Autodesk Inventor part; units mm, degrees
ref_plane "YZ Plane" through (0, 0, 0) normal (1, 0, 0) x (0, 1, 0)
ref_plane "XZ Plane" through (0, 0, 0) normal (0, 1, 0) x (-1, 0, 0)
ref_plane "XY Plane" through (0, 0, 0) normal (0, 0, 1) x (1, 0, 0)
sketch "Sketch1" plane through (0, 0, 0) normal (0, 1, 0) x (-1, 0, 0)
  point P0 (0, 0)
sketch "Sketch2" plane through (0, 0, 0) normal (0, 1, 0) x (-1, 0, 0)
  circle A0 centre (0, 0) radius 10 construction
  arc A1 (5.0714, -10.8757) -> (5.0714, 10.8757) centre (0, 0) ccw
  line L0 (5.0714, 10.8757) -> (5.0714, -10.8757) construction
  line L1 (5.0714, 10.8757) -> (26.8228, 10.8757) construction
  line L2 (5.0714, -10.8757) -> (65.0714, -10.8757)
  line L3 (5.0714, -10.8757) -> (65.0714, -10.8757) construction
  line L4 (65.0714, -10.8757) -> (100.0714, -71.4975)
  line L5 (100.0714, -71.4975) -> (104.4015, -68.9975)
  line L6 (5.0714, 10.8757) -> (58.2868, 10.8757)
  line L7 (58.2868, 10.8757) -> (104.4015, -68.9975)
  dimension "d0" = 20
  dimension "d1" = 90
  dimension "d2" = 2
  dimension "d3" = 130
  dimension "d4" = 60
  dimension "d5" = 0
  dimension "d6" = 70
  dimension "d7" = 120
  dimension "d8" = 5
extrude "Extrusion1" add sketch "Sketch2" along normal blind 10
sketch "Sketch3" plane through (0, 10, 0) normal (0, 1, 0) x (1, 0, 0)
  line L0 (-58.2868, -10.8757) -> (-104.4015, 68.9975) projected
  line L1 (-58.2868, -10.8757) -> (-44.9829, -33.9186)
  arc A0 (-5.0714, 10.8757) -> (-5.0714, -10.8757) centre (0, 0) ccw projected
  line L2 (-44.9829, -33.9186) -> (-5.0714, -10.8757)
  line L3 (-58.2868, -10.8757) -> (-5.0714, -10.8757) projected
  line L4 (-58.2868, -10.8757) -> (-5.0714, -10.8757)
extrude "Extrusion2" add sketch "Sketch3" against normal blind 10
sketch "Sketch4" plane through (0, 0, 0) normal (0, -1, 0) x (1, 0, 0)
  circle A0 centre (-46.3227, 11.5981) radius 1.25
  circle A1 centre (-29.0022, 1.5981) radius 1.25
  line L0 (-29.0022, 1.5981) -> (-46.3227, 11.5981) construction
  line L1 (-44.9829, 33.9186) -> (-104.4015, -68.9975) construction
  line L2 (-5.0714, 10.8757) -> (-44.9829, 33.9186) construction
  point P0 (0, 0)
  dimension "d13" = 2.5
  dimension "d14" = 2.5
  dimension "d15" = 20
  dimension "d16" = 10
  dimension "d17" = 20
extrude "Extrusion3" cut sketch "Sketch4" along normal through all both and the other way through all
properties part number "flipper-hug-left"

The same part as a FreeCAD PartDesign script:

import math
import FreeCAD as App
import Part
import Sketcher
Q = App.Units.Quantity


def add_polygon(sketch, points):
    """Adds a closed chain of lines whose ends are joined by coincident constraints."""
    first, n = sketch.GeometryCount, len(points)
    for a, b in zip(points, points[1:] + points[:1]):
        sketch.addGeometry(Part.LineSegment(App.Vector(*a, 0), App.Vector(*b, 0)), False)
    for i in range(n):
        sketch.addConstraint(Sketcher.Constraint("Coincident", first + i, 2, first + (i + 1) % n, 1))

doc = App.newDocument("Part")
body = doc.addObject("PartDesign::Body", "Body")

# Sketch on XZ plane
sketch1 = body.newObject("Sketcher::SketchObject", "Sketch")
sketch1.AttachmentSupport = (doc.getObject("XZ_Plane"), [""])
sketch1.MapMode = "FlatFace"
sketch1.addGeometry(Part.ArcOfCircle(Part.Circle(App.Vector(0, 0, 0), App.Vector(0, 0, 1), 12), math.radians(115), math.radians(245)), False)
sketch1.addGeometry(Part.LineSegment(App.Vector(-5.1, -10.9, 0), App.Vector(-65.1, -10.9, 0)), False)
sketch1.addGeometry(Part.LineSegment(App.Vector(-65.1, -10.9, 0), App.Vector(-100.1, -71.5, 0)), False)
sketch1.addGeometry(Part.LineSegment(App.Vector(-100.1, -71.5, 0), App.Vector(-104.4, -69, 0)), False)
sketch1.addGeometry(Part.LineSegment(App.Vector(-104.4, -69, 0), App.Vector(-58.3, 10.9, 0)), False)
sketch1.addGeometry(Part.LineSegment(App.Vector(-58.3, 10.9, 0), App.Vector(-5.1, 10.9, 0)), False)
sketch1.addConstraint(Sketcher.Constraint("Coincident", 0, 2, 1, 1))
sketch1.addConstraint(Sketcher.Constraint("Coincident", 1, 2, 2, 1))
sketch1.addConstraint(Sketcher.Constraint("Coincident", 2, 2, 3, 1))
sketch1.addConstraint(Sketcher.Constraint("Coincident", 3, 2, 4, 1))
sketch1.addConstraint(Sketcher.Constraint("Coincident", 4, 2, 5, 1))
sketch1.addConstraint(Sketcher.Constraint("Coincident", 5, 2, 0, 1))
sketch1.addConstraint(Sketcher.Constraint("Horizontal", 1))
sketch1.addConstraint(Sketcher.Constraint("Horizontal", 5))
sketch1.addConstraint(Sketcher.Constraint("Coincident", 0, 3, -1, 1))
sketch1.addConstraint(Sketcher.Constraint("Perpendicular", 2, 3))
sketch1.addConstraint(Sketcher.Constraint("Perpendicular", 3, 4))
sketch1.addConstraint(Sketcher.Constraint("Vertical", 0, 2, 5, 2))
sketch1.addConstraint(Sketcher.Constraint("DistanceX", 1, 2, 1, 1, Q("60 mm")))
sketch1.addConstraint(Sketcher.Constraint("Angle", 2, Q("-120 deg")))
sketch1.addConstraint(Sketcher.Constraint("Distance", 2, Q("70 mm")))
sketch1.addConstraint(Sketcher.Constraint("Distance", 3, Q("5 mm")))
sketch1.addConstraint(Sketcher.Constraint("Radius", 0, Q("12 mm")))
sketch1.addConstraint(Sketcher.Constraint("DistanceX", 5, 1, 5, 2, Q("53.2154 mm")))
pad1 = body.newObject("PartDesign::Pad", "Pad")
pad1.Profile = sketch1
pad1.Length = 10
pad1.Reversed = True

# Sketch on XZ plane
sketch2 = body.newObject("Sketcher::SketchObject", "Sketch001")
sketch2.AttachmentSupport = (doc.getObject("XZ_Plane"), [""])
sketch2.MapMode = "FlatFace"
sketch2.AttachmentOffset = App.Placement(App.Vector(0, 0, -10), App.Rotation())
add_polygon(sketch2, [(-5, 11), (-58, 11), (-45, 34)])  # lines 0-2
sketch2.addConstraint(Sketcher.Constraint("Horizontal", 0))
sketch2.addConstraint(Sketcher.Constraint("Perpendicular", 1, 2))
sketch2.addConstraint(Sketcher.Constraint("Angle", 1, Q("59.9999 deg")))
sketch2.addConstraint(Sketcher.Constraint("DistanceX", 0, 2, 0, 1, Q("53.2154 mm")))
sketch2.addConstraint(Sketcher.Constraint("DistanceX", 1, 2, -1, 1, Q("44.983 mm")))
sketch2.addConstraint(Sketcher.Constraint("DistanceY", -1, 1, 0, 2, Q("10.8757 mm")))
pad2 = body.newObject("PartDesign::Pad", "Pad001")
pad2.Profile = sketch2
pad2.Length = 10

# Sketch on XZ plane
sketch3 = body.newObject("Sketcher::SketchObject", "Sketch002")
sketch3.AttachmentSupport = (doc.getObject("XZ_Plane"), [""])
sketch3.MapMode = "FlatFace"
sketch3.addGeometry(Part.Circle(App.Vector(-46.3, 11.6, 0), App.Vector(0, 0, 1), 1.2), False)
sketch3.addGeometry(Part.Circle(App.Vector(-29, 1.6, 0), App.Vector(0, 0, 1), 1.2), False)
sketch3.addConstraint(Sketcher.Constraint("Equal", 0, 1))
sketch3.addConstraint(Sketcher.Constraint("Diameter", 0, Q("2.5 mm")))
sketch3.addConstraint(Sketcher.Constraint("DistanceY", 1, 3, 0, 3, Q("10 mm")))
sketch3.addConstraint(Sketcher.Constraint("DistanceY", -1, 1, 0, 3, Q("11.598 mm")))
sketch3.addConstraint(Sketcher.Constraint("DistanceX", 0, 3, -1, 1, Q("46.3227 mm")))
sketch3.addConstraint(Sketcher.Constraint("DistanceX", 1, 3, -1, 1, Q("29.0022 mm")))
pocket1 = body.newObject("PartDesign::Pocket", "Pocket")
pocket1.Profile = sketch3
pocket1.Type = "ThroughAll"
pocket1.Midplane = True

doc.recompute()
